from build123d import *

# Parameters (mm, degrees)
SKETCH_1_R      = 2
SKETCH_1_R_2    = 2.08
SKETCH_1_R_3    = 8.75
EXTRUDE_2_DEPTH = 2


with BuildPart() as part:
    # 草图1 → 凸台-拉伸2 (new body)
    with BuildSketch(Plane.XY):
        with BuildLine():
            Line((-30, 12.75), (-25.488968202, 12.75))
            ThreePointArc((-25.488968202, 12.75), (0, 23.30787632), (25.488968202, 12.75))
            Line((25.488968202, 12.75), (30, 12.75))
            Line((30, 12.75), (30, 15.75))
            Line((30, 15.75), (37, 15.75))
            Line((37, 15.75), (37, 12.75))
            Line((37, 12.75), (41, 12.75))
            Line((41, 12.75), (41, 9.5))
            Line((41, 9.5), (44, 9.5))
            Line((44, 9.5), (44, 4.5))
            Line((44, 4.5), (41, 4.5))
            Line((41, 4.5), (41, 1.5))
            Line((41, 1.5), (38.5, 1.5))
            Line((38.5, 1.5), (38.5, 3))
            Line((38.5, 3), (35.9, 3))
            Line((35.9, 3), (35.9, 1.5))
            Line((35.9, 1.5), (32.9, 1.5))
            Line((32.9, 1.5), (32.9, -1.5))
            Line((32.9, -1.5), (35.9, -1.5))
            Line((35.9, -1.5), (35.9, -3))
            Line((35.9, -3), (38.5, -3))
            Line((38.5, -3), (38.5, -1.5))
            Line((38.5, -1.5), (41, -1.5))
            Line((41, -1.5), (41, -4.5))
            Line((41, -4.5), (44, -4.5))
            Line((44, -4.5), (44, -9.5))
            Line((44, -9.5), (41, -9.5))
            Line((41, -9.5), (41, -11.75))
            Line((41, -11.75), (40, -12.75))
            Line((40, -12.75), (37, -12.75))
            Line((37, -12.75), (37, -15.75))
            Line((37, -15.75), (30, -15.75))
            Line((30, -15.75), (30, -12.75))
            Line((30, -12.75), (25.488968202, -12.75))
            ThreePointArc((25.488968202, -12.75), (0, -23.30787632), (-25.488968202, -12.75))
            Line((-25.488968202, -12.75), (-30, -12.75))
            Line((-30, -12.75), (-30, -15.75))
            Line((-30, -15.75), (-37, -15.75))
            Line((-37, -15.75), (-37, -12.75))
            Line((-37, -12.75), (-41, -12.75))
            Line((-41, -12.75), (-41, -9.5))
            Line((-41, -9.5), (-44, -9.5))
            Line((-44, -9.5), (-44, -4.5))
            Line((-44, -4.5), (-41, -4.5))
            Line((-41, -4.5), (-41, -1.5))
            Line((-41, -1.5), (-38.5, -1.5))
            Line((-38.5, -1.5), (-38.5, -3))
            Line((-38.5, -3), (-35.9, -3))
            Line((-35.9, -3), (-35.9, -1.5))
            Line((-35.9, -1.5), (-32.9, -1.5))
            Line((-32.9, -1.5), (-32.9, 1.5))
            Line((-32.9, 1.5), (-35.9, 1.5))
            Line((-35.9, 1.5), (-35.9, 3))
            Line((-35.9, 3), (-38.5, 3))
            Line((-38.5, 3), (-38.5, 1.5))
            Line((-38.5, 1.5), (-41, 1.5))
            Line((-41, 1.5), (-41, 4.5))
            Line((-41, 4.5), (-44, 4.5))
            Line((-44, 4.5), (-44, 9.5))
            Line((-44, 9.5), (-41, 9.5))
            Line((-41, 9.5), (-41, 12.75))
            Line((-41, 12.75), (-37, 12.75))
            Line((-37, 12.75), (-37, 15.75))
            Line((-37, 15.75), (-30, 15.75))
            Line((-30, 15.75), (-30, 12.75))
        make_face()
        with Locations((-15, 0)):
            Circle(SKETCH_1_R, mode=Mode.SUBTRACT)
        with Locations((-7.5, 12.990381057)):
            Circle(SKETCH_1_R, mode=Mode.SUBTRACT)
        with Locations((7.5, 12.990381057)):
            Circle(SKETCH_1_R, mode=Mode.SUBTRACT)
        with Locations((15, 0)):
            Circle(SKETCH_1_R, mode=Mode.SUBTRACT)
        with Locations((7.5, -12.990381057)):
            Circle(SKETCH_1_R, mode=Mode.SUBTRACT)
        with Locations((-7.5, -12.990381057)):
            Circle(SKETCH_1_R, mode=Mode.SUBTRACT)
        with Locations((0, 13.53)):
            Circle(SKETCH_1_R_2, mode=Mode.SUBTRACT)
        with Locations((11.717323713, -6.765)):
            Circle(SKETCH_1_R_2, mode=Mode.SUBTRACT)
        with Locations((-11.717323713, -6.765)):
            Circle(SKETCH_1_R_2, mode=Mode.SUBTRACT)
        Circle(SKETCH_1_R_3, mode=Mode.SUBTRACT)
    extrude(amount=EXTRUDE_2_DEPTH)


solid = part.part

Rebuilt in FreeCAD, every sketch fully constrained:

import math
import FreeCAD as App
import Part
import Sketcher

V = App.Vector
Q = App.Units.Quantity

doc = App.newDocument("Part")
body = doc.addObject("PartDesign::Body", "Body")

# Sketch on XY plane
sketch1 = body.newObject("Sketcher::SketchObject", "Sketch")
sketch1.AttachmentSupport = (doc.getObject("XY_Plane"), [""])
sketch1.MapMode = "FlatFace"
sketch1.addGeometry(Part.LineSegment(V(-25.5, 12.8, 0), V(-30, 12.8, 0)), False)
sketch1.addGeometry(Part.LineSegment(V(-30, 12.8, 0), V(-30, 15.8, 0)), False)
sketch1.addGeometry(Part.LineSegment(V(-30, 15.8, 0), V(-37, 15.8, 0)), False)
sketch1.addGeometry(Part.LineSegment(V(-37, 15.8, 0), V(-37, 12.8, 0)), False)
sketch1.addGeometry(Part.LineSegment(V(-37, 12.8, 0), V(-41, 12.8, 0)), False)
sketch1.addGeometry(Part.LineSegment(V(-41, 12.8, 0), V(-41, 9.5, 0)), False)
sketch1.addGeometry(Part.LineSegment(V(-41, 9.5, 0), V(-44, 9.5, 0)), False)
sketch1.addGeometry(Part.LineSegment(V(-44, 9.5, 0), V(-44, 4.5, 0)), False)
sketch1.addGeometry(Part.LineSegment(V(-44, 4.5, 0), V(-41, 4.5, 0)), False)
sketch1.addGeometry(Part.LineSegment(V(-41, 4.5, 0), V(-41, 1.5, 0)), False)
sketch1.addGeometry(Part.LineSegment(V(-41, 1.5, 0), V(-38.5, 1.5, 0)), False)
sketch1.addGeometry(Part.LineSegment(V(-38.5, 1.5, 0), V(-38.5, 3, 0)), False)
sketch1.addGeometry(Part.LineSegment(V(-38.5, 3, 0), V(-35.9, 3, 0)), False)
sketch1.addGeometry(Part.LineSegment(V(-35.9, 3, 0), V(-35.9, 1.5, 0)), False)
sketch1.addGeometry(Part.LineSegment(V(-35.9, 1.5, 0), V(-32.9, 1.5, 0)), False)
sketch1.addGeometry(Part.LineSegment(V(-32.9, 1.5, 0), V(-32.9, -1.5, 0)), False)
sketch1.addGeometry(Part.LineSegment(V(-32.9, -1.5, 0), V(-35.9, -1.5, 0)), False)
sketch1.addGeometry(Part.LineSegment(V(-35.9, -1.5, 0), V(-35.9, -3, 0)), False)
sketch1.addGeometry(Part.LineSegment(V(-35.9, -3, 0), V(-38.5, -3, 0)), False)
sketch1.addGeometry(Part.LineSegment(V(-38.5, -3, 0), V(-38.5, -1.5, 0)), False)
sketch1.addGeometry(Part.LineSegment(V(-38.5, -1.5, 0), V(-41, -1.5, 0)), False)
sketch1.addGeometry(Part.LineSegment(V(-41, -1.5, 0), V(-41, -4.5, 0)), False)
sketch1.addGeometry(Part.LineSegment(V(-41, -4.5, 0), V(-44, -4.5, 0)), False)
sketch1.addGeometry(Part.LineSegment(V(-44, -4.5, 0), V(-44, -9.5, 0)), False)
sketch1.addGeometry(Part.LineSegment(V(-44, -9.5, 0), V(-41, -9.5, 0)), False)
sketch1.addGeometry(Part.LineSegment(V(-41, -9.5, 0), V(-41, -12.8, 0)), False)
sketch1.addGeometry(Part.LineSegment(V(-41, -12.8, 0), V(-37, -12.8, 0)), False)
sketch1.addGeometry(Part.LineSegment(V(-37, -12.8, 0), V(-37, -15.8, 0)), False)
sketch1.addGeometry(Part.LineSegment(V(-37, -15.8, 0), V(-30, -15.8, 0)), False)
sketch1.addGeometry(Part.LineSegment(V(-30, -15.8, 0), V(-30, -12.8, 0)), False)
sketch1.addGeometry(Part.LineSegment(V(-30, -12.8, 0), V(-25.5, -12.8, 0)), False)
sketch1.addGeometry(Part.ArcOfCircle(Part.Circle(V(0, 12.7, 0), V(0, 0, 1), 36), math.radians(-135), math.radians(-45)), False)
sketch1.addGeometry(Part.LineSegment(V(25.5, -12.8, 0), V(30, -12.8, 0)), False)
sketch1.addGeometry(Part.LineSegment(V(30, -12.8, 0), V(30, -15.8, 0)), False)
sketch1.addGeometry(Part.LineSegment(V(30, -15.8, 0), V(37, -15.8, 0)), False)
sketch1.addGeometry(Part.LineSegment(V(37, -15.8, 0), V(37, -12.8, 0)), False)
sketch1.addGeometry(Part.LineSegment(V(37, -12.8, 0), V(40, -12.8, 0)), False)
sketch1.addGeometry(Part.LineSegment(V(40, -12.8, 0), V(41, -11.8, 0)), False)
sketch1.addGeometry(Part.LineSegment(V(41, -11.8, 0), V(41, -9.5, 0)), False)
sketch1.addGeometry(Part.LineSegment(V(41, -9.5, 0), V(44, -9.5, 0)), False)
sketch1.addGeometry(Part.LineSegment(V(44, -9.5, 0), V(44, -4.5, 0)), False)
sketch1.addGeometry(Part.LineSegment(V(44, -4.5, 0), V(41, -4.5, 0)), False)
sketch1.addGeometry(Part.LineSegment(V(41, -4.5, 0), V(41, -1.5, 0)), False)
sketch1.addGeometry(Part.LineSegment(V(41, -1.5, 0), V(38.5, -1.5, 0)), False)
sketch1.addGeometry(Part.LineSegment(V(38.5, -1.5, 0), V(38.5, -3, 0)), False)
sketch1.addGeometry(Part.LineSegment(V(38.5, -3, 0), V(35.9, -3, 0)), False)
sketch1.addGeometry(Part.LineSegment(V(35.9, -3, 0), V(35.9, -1.5, 0)), False)
sketch1.addGeometry(Part.LineSegment(V(35.9, -1.5, 0), V(32.9, -1.5, 0)), False)
sketch1.addGeometry(Part.LineSegment(V(32.9, -1.5, 0), V(32.9, 1.5, 0)), False)
sketch1.addGeometry(Part.LineSegment(V(32.9, 1.5, 0), V(35.9, 1.5, 0)), False)
sketch1.addGeometry(Part.LineSegment(V(35.9, 1.5, 0), V(35.9, 3, 0)), False)
sketch1.addGeometry(Part.LineSegment(V(35.9, 3, 0), V(38.5, 3, 0)), False)
sketch1.addGeometry(Part.LineSegment(V(38.5, 3, 0), V(38.5, 1.5, 0)), False)
sketch1.addGeometry(Part.LineSegment(V(38.5, 1.5, 0), V(41, 1.5, 0)), False)
sketch1.addGeometry(Part.LineSegment(V(41, 1.5, 0), V(41, 4.5, 0)), False)
sketch1.addGeometry(Part.LineSegment(V(41, 4.5, 0), V(44, 4.5, 0)), False)
sketch1.addGeometry(Part.LineSegment(V(44, 4.5, 0), V(44, 9.5, 0)), False)
sketch1.addGeometry(Part.LineSegment(V(44, 9.5, 0), V(41, 9.5, 0)), False)
sketch1.addGeometry(Part.LineSegment(V(41, 9.5, 0), V(41, 12.8, 0)), False)
sketch1.addGeometry(Part.LineSegment(V(41, 12.8, 0), V(37, 12.8, 0)), False)
sketch1.addGeometry(Part.LineSegment(V(37, 12.8, 0), V(37, 15.8, 0)), False)
sketch1.addGeometry(Part.LineSegment(V(37, 15.8, 0), V(30, 15.8, 0)), False)
sketch1.addGeometry(Part.LineSegment(V(30, 15.8, 0), V(30, 12.8, 0)), False)
sketch1.addGeometry(Part.LineSegment(V(30, 12.8, 0), V(25.5, 12.8, 0)), False)
sketch1.addGeometry(Part.ArcOfCircle(Part.Circle(V(0, -12.7, 0), V(0, 0, 1), 36), math.radians(45), math.radians(135)), False)
sketch1.addGeometry(Part.Circle(V(7.5, -13, 0), V(0, 0, 1), 2), False)
sketch1.addGeometry(Part.Circle(V(11.7, -6.8, 0), V(0, 0, 1), 2.1), False)
sketch1.addGeometry(Part.Circle(V(15, 0, 0), V(0, 0, 1), 2), False)
sketch1.addGeometry(Part.Circle(V(-7.5, -13, 0), V(0, 0, 1), 2), False)
sketch1.addGeometry(Part.Circle(V(0, 0, 0), V(0, 0, 1), 8.8), False)
sketch1.addGeometry(Part.Circle(V(-11.7, -6.8, 0), V(0, 0, 1), 2.1), False)
sketch1.addGeometry(Part.Circle(V(-15, 0, 0), V(0, 0, 1), 2), False)
sketch1.addGeometry(Part.Circle(V(7.5, 13, 0), V(0, 0, 1), 2), False)
sketch1.addGeometry(Part.Circle(V(0, 13.5, 0), V(0, 0, 1), 2.1), False)
sketch1.addGeometry(Part.Circle(V(-7.5, 13, 0), V(0, 0, 1), 2), False)
sketch1.addConstraint(Sketcher.Constraint("Coincident", 0, 2, 1, 1))
sketch1.addConstraint(Sketcher.Constraint("Coincident", 1, 2, 2, 1))
sketch1.addConstraint(Sketcher.Constraint("Coincident", 2, 2, 3, 1))
sketch1.addConstraint(Sketcher.Constraint("Coincident", 3, 2, 4, 1))
sketch1.addConstraint(Sketcher.Constraint("Coincident", 4, 2, 5, 1))
sketch1.addConstraint(Sketcher.Constraint("Coincident", 5, 2, 6, 1))
sketch1.addConstraint(Sketcher.Constraint("Coincident", 6, 2, 7, 1))
sketch1.addConstraint(Sketcher.Constraint("Coincident", 7, 2, 8, 1))
sketch1.addConstraint(Sketcher.Constraint("Coincident", 8, 2, 9, 1))
sketch1.addConstraint(Sketcher.Constraint("Coincident", 9, 2, 10, 1))
sketch1.addConstraint(Sketcher.Constraint("Coincident", 10, 2, 11, 1))
sketch1.addConstraint(Sketcher.Constraint("Coincident", 11, 2, 12, 1))
sketch1.addConstraint(Sketcher.Constraint("Coincident", 12, 2, 13, 1))
sketch1.addConstraint(Sketcher.Constraint("Coincident", 13, 2, 14, 1))
sketch1.addConstraint(Sketcher.Constraint("Coincident", 14, 2, 15, 1))
sketch1.addConstraint(Sketcher.Constraint("Coincident", 15, 2, 16, 1))
sketch1.addConstraint(Sketcher.Constraint("Coincident", 16, 2, 17, 1))
sketch1.addConstraint(Sketcher.Constraint("Coincident", 17, 2, 18, 1))
sketch1.addConstraint(Sketcher.Constraint("Coincident", 18, 2, 19, 1))
sketch1.addConstraint(Sketcher.Constraint("Coincident", 19, 2, 20, 1))
sketch1.addConstraint(Sketcher.Constraint("Coincident", 20, 2, 21, 1))
sketch1.addConstraint(Sketcher.Constraint("Coincident", 21, 2, 22, 1))
sketch1.addConstraint(Sketcher.Constraint("Coincident", 22, 2, 23, 1))
sketch1.addConstraint(Sketcher.Constraint("Coincident", 23, 2, 24, 1))
sketch1.addConstraint(Sketcher.Constraint("Coincident", 24, 2, 25, 1))
sketch1.addConstraint(Sketcher.Constraint("Coincident", 25, 2, 26, 1))
sketch1.addConstraint(Sketcher.Constraint("Coincident", 26, 2, 27, 1))
sketch1.addConstraint(Sketcher.Constraint("Coincident", 27, 2, 28, 1))
sketch1.addConstraint(Sketcher.Constraint("Coincident", 28, 2, 29, 1))
sketch1.addConstraint(Sketcher.Constraint("Coincident", 29, 2, 30, 1))
sketch1.addConstraint(Sketcher.Constraint("Coincident", 30, 2, 31, 1))
sketch1.addConstraint(Sketcher.Constraint("Coincident", 31, 2, 32, 1))
sketch1.addConstraint(Sketcher.Constraint("Coincident", 32, 2, 33, 1))
sketch1.addConstraint(Sketcher.Constraint("Coincident", 33, 2, 34, 1))
sketch1.addConstraint(Sketcher.Constraint("Coincident", 34, 2, 35, 1))
sketch1.addConstraint(Sketcher.Constraint("Coincident", 35, 2, 36, 1))
sketch1.addConstraint(Sketcher.Constraint("Coincident", 36, 2, 37, 1))
sketch1.addConstraint(Sketcher.Constraint("Coincident", 37, 2, 38, 1))
sketch1.addConstraint(Sketcher.Constraint("Coincident", 38, 2, 39, 1))
sketch1.addConstraint(Sketcher.Constraint("Coincident", 39, 2, 40, 1))
sketch1.addConstraint(Sketcher.Constraint("Coincident", 40, 2, 41, 1))
sketch1.addConstraint(Sketcher.Constraint("Coincident", 41, 2, 42, 1))
sketch1.addConstraint(Sketcher.Constraint("Coincident", 42, 2, 43, 1))
sketch1.addConstraint(Sketcher.Constraint("Coincident", 43, 2, 44, 1))
sketch1.addConstraint(Sketcher.Constraint("Coincident", 44, 2, 45, 1))
sketch1.addConstraint(Sketcher.Constraint("Coincident", 45, 2, 46, 1))
sketch1.addConstraint(Sketcher.Constraint("Coincident", 46, 2, 47, 1))
sketch1.addConstraint(Sketcher.Constraint("Coincident", 47, 2, 48, 1))
sketch1.addConstraint(Sketcher.Constraint("Coincident", 48, 2, 49, 1))
sketch1.addConstraint(Sketcher.Constraint("Coincident", 49, 2, 50, 1))
sketch1.addConstraint(Sketcher.Constraint("Coincident", 50, 2, 51, 1))
sketch1.addConstraint(Sketcher.Constraint("Coincident", 51, 2, 52, 1))
sketch1.addConstraint(Sketcher.Constraint("Coincident", 52, 2, 53, 1))
sketch1.addConstraint(Sketcher.Constraint("Coincident", 53, 2, 54, 1))
sketch1.addConstraint(Sketcher.Constraint("Coincident", 54, 2, 55, 1))
sketch1.addConstraint(Sketcher.Constraint("Coincident", 55, 2, 56, 1))
sketch1.addConstraint(Sketcher.Constraint("Coincident", 56, 2, 57, 1))
sketch1.addConstraint(Sketcher.Constraint("Coincident", 57, 2, 58, 1))
sketch1.addConstraint(Sketcher.Constraint("Coincident", 58, 2, 59, 1))
sketch1.addConstraint(Sketcher.Constraint("Coincident", 59, 2, 60, 1))
sketch1.addConstraint(Sketcher.Constraint("Coincident", 60, 2, 61, 1))
sketch1.addConstraint(Sketcher.Constraint("Coincident", 61, 2, 62, 1))
sketch1.addConstraint(Sketcher.Constraint("Coincident", 62, 2, 63, 1))
sketch1.addConstraint(Sketcher.Constraint("Coincident", 63, 2, 64, 1))
sketch1.addConstraint(Sketcher.Constraint("Coincident", 64, 2, 0, 1))
sketch1.addConstraint(Sketcher.Constraint("Horizontal", 0))
sketch1.addConstraint(Sketcher.Constraint("Vertical", 1))
sketch1.addConstraint(Sketcher.Constraint("Horizontal", 2))
sketch1.addConstraint(Sketcher.Constraint("Vertical", 3))
sketch1.addConstraint(Sketcher.Constraint("Horizontal", 4))
sketch1.addConstraint(Sketcher.Constraint("Vertical", 5))
sketch1.addConstraint(Sketcher.Constraint("Horizontal", 6))
sketch1.addConstraint(Sketcher.Constraint("Vertical", 7))
sketch1.addConstraint(Sketcher.Constraint("Horizontal", 8))
sketch1.addConstraint(Sketcher.Constraint("Vertical", 9))
sketch1.addConstraint(Sketcher.Constraint("Horizontal", 10))
sketch1.addConstraint(Sketcher.Constraint("Vertical", 11))
sketch1.addConstraint(Sketcher.Constraint("Horizontal", 12))
sketch1.addConstraint(Sketcher.Constraint("Vertical", 13))
sketch1.addConstraint(Sketcher.Constraint("Horizontal", 14))
sketch1.addConstraint(Sketcher.Constraint("Vertical", 15))
sketch1.addConstraint(Sketcher.Constraint("Horizontal", 16))
sketch1.addConstraint(Sketcher.Constraint("Vertical", 17))
sketch1.addConstraint(Sketcher.Constraint("Horizontal", 18))
sketch1.addConstraint(Sketcher.Constraint("Vertical", 19))
sketch1.addConstraint(Sketcher.Constraint("Horizontal", 20))
sketch1.addConstraint(Sketcher.Constraint("Vertical", 21))
sketch1.addConstraint(Sketcher.Constraint("Horizontal", 22))
sketch1.addConstraint(Sketcher.Constraint("Vertical", 23))
sketch1.addConstraint(Sketcher.Constraint("Horizontal", 24))
sketch1.addConstraint(Sketcher.Constraint("Vertical", 25))
sketch1.addConstraint(Sketcher.Constraint("Horizontal", 26))
sketch1.addConstraint(Sketcher.Constraint("Vertical", 27))
sketch1.addConstraint(Sketcher.Constraint("Horizontal", 28))
sketch1.addConstraint(Sketcher.Constraint("Vertical", 29))
sketch1.addConstraint(Sketcher.Constraint("Horizontal", 30))
sketch1.addConstraint(Sketcher.Constraint("Horizontal", 32))
sketch1.addConstraint(Sketcher.Constraint("Vertical", 33))
sketch1.addConstraint(Sketcher.Constraint("Horizontal", 34))
sketch1.addConstraint(Sketcher.Constraint("Vertical", 35))
sketch1.addConstraint(Sketcher.Constraint("Horizontal", 36))
sketch1.addConstraint(Sketcher.Constraint("Vertical", 38))
sketch1.addConstraint(Sketcher.Constraint("Horizontal", 39))
sketch1.addConstraint(Sketcher.Constraint("Vertical", 40))
sketch1.addConstraint(Sketcher.Constraint("Horizontal", 41))
sketch1.addConstraint(Sketcher.Constraint("Vertical", 42))
sketch1.addConstraint(Sketcher.Constraint("Horizontal", 43))
sketch1.addConstraint(Sketcher.Constraint("Vertical", 44))
sketch1.addConstraint(Sketcher.Constraint("Horizontal", 45))
sketch1.addConstraint(Sketcher.Constraint("Vertical", 46))
sketch1.addConstraint(Sketcher.Constraint("Horizontal", 47))
sketch1.addConstraint(Sketcher.Constraint("Vertical", 48))
sketch1.addConstraint(Sketcher.Constraint("Horizontal", 49))
sketch1.addConstraint(Sketcher.Constraint("Vertical", 50))
sketch1.addConstraint(Sketcher.Constraint("Horizontal", 51))
sketch1.addConstraint(Sketcher.Constraint("Vertical", 52))
sketch1.addConstraint(Sketcher.Constraint("Horizontal", 53))
sketch1.addConstraint(Sketcher.Constraint("Vertical", 54))
sketch1.addConstraint(Sketcher.Constraint("Horizontal", 55))
sketch1.addConstraint(Sketcher.Constraint("Vertical", 56))
sketch1.addConstraint(Sketcher.Constraint("Horizontal", 57))
sketch1.addConstraint(Sketcher.Constraint("Vertical", 58))
sketch1.addConstraint(Sketcher.Constraint("Horizontal", 59))
sketch1.addConstraint(Sketcher.Constraint("Vertical", 60))
sketch1.addConstraint(Sketcher.Constraint("Horizontal", 61))
sketch1.addConstraint(Sketcher.Constraint("Vertical", 62))
sketch1.addConstraint(Sketcher.Constraint("Horizontal", 63))
sketch1.addConstraint(Sketcher.Constraint("Coincident", 69, 3, -1, 1))
sketch1.addConstraint(Sketcher.Constraint("Equal", 31, 64))
sketch1.addConstraint(Sketcher.Constraint("Equal", 65, 67))
sketch1.addConstraint(Sketcher.Constraint("Equal", 67, 68))
sketch1.addConstraint(Sketcher.Constraint("Equal", 66, 70))
sketch1.addConstraint(Sketcher.Constraint("Equal", 68, 71))
sketch1.addConstraint(Sketcher.Constraint("Equal", 71, 72))
sketch1.addConstraint(Sketcher.Constraint("Equal", 70, 73))
sketch1.addConstraint(Sketcher.Constraint("Equal", 72, 74))
sketch1.addConstraint(Sketcher.Constraint("Symmetric", 31, 3, 64, 3, -1, 1))
sketch1.addConstraint(Sketcher.Constraint("Symmetric", 67, 3, 71, 3, -1, 1))
sketch1.addConstraint(Sketcher.Constraint("Symmetric", 68, 3, 72, 3, -1, 1))
sketch1.addConstraint(Sketcher.Constraint("Symmetric", 65, 3, 74, 3, -1, 1))
sketch1.addConstraint(Sketcher.Constraint("Symmetric", 0, 2, 32, 2, -1, 1))
sketch1.addConstraint(Sketcher.Constraint("Symmetric", 2, 2, 34, 2, -1, 1))
sketch1.addConstraint(Sketcher.Constraint("Symmetric", 5, 2, 38, 2, -1, 1))
sketch1.addConstraint(Sketcher.Constraint("Symmetric", 7, 2, 40, 2, -1, 1))
sketch1.addConstraint(Sketcher.Constraint("Symmetric", 9, 2, 42, 2, -1, 1))
sketch1.addConstraint(Sketcher.Constraint("Symmetric", 11, 2, 44, 2, -1, 1))
sketch1.addConstraint(Sketcher.Constraint("Symmetric", 13, 2, 46, 2, -1, 1))
sketch1.addConstraint(Sketcher.Constraint("Symmetric", 15, 2, 48, 2, -1, 1))
sketch1.addConstraint(Sketcher.Constraint("Symmetric", 17, 2, 50, 2, -1, 1))
sketch1.addConstraint(Sketcher.Constraint("Symmetric", 19, 2, 52, 2, -1, 1))
sketch1.addConstraint(Sketcher.Constraint("Symmetric", 21, 2, 54, 2, -1, 1))
sketch1.addConstraint(Sketcher.Constraint("Symmetric", 23, 2, 56, 2, -1, 1))
sketch1.addConstraint(Sketcher.Constraint("Symmetric", 25, 2, 58, 2, -1, 1))
sketch1.addConstraint(Sketcher.Constraint("Symmetric", 27, 2, 60, 2, -1, 1))
sketch1.addConstraint(Sketcher.Constraint("Symmetric", 29, 2, 62, 2, -1, 1))
sketch1.addConstraint(Sketcher.Constraint("Symmetric", 65, 3, 68, 3, -2))
sketch1.addConstraint(Sketcher.Constraint("Symmetric", 66, 3, 70, 3, -2))
sketch1.addConstraint(Sketcher.Constraint("Symmetric", 30, 2, 31, 2, -2))
sketch1.addConstraint(Sketcher.Constraint("Symmetric", 28, 2, 33, 2, -2))
sketch1.addConstraint(Sketcher.Constraint("Symmetric", 26, 2, 35, 2, -2))
sketch1.addConstraint(Sketcher.Constraint("Symmetric", 24, 2, 38, 2, -2))
sketch1.addConstraint(Sketcher.Constraint("Symmetric", 22, 2, 40, 2, -2))
sketch1.addConstraint(Sketcher.Constraint("Symmetric", 20, 2, 42, 2, -2))
sketch1.addConstraint(Sketcher.Constraint("Symmetric", 18, 2, 44, 2, -2))
sketch1.addConstraint(Sketcher.Constraint("Symmetric", 16, 2, 46, 2, -2))
sketch1.addConstraint(Sketcher.Constraint("PointOnObject", 67, 3, -1))
sketch1.addConstraint(Sketcher.Constraint("PointOnObject", 73, 3, -2))
sketch1.addConstraint(Sketcher.Constraint("Horizontal", 0, 2, 3, 2))
sketch1.addConstraint(Sketcher.Constraint("Horizontal", 10, 2, 13, 2))
sketch1.addConstraint(Sketcher.Constraint("Horizontal", 26, 2, 29, 2))
sketch1.addConstraint(Sketcher.Constraint("Vertical", 5, 2, 8, 2))
sketch1.addConstraint(Sketcher.Constraint("Equal", 8, 14))
sketch1.addConstraint(Sketcher.Constraint("Equal", 24, 36))
sketch1.addConstraint(Sketcher.Constraint("Equal", 57, 1))
sketch1.addConstraint(Sketcher.Constraint("Equal", 3, 9))
sketch1.addConstraint(Sketcher.Constraint("Equal", 9, 15))
sketch1.addConstraint(Sketcher.Constraint("Diameter", 65, 4.0))
sketch1.addConstraint(Sketcher.Constraint("Diameter", 69, 17.5))
sketch1.addConstraint(Sketcher.Constraint("Diameter", 66, 4.16))
sketch1.addConstraint(Sketcher.Constraint("DistanceX", 2, 2, 2, 1, 7.0))
sketch1.addConstraint(Sketcher.Constraint("DistanceX", 4, 2, 4, 1, 4.0))
sketch1.addConstraint(Sketcher.Constraint("DistanceX", 6, 2, 6, 1, 3.0))
sketch1.addConstraint(Sketcher.Constraint("DistanceY", 7, 2, 7, 1, 5.0))
sketch1.addConstraint(Sketcher.Constraint("Angle", 37, Q("45 deg")))
sketch1.addConstraint(Sketcher.Constraint("DistanceX", 10, 1, 10, 2, 2.5))
sketch1.addConstraint(Sketcher.Constraint("DistanceX", 12, 1, 12, 2, 2.6))
sketch1.addConstraint(Sketcher.Constraint("DistanceY", 11, 1, 11, 2, 1.5))
sketch1.addConstraint(Sketcher.Constraint("DistanceX", -1, 1, 67, 3, 15.0))
sketch1.addConstraint(Sketcher.Constraint("DistanceX", 0, 2, -1, 1, 30.0))
sketch1.addConstraint(Sketcher.Constraint("DistanceY", 5, 2, 5, 1, 3.25))
sketch1.addConstraint(Sketcher.Constraint("DistanceX", -1, 1, 65, 3, 7.5))
sketch1.addConstraint(Sketcher.Constraint("DistanceY", -1, 1, 73, 3, 13.53))
sketch1.addConstraint(Sketcher.Constraint("DistanceY", 66, 3, -1, 1, 6.765))
sketch1.addConstraint(Sketcher.Constraint("Radius", 31, 36.046845))
sketch1.addConstraint(Sketcher.Constraint("DistanceX", 0, 2, 0, 1, 4.511032))
sketch1.addConstraint(Sketcher.Constraint("DistanceY", 65, 3, -1, 1, 12.990381))
sketch1.addConstraint(Sketcher.Constraint("DistanceX", -1, 1, 66, 3, 11.717324))
pad1 = body.newObject("PartDesign::Pad", "Pad")
pad1.Profile = sketch1
pad1.Length = 2

doc.recompute()
